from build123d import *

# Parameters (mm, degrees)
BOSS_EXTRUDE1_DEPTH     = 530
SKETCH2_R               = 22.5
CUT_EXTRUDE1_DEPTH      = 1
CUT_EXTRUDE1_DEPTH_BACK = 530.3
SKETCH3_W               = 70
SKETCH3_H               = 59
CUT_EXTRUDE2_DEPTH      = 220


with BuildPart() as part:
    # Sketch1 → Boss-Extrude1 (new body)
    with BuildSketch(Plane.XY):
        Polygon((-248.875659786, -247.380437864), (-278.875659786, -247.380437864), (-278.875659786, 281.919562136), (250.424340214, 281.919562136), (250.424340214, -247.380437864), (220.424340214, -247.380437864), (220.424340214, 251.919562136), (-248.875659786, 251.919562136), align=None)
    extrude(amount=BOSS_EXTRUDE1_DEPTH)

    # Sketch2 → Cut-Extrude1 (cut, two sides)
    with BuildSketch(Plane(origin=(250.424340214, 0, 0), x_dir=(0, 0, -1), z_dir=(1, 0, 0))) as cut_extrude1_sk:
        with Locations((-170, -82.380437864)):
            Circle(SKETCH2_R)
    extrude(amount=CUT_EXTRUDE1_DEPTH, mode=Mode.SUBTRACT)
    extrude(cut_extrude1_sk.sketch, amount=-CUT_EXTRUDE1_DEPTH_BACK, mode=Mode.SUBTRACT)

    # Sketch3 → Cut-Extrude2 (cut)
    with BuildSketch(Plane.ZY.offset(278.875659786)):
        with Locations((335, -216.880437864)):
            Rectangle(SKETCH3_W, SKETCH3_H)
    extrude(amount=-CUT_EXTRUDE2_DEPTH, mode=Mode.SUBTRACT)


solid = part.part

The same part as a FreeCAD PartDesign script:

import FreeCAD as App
import Part
import Sketcher

V = App.Vector

doc = App.newDocument("Part")
body = doc.addObject("PartDesign::Body", "Body")

# Sketch on XY plane
sketch1 = doc.addObject("Sketcher::SketchObject", "Sketch")
body.addObject(sketch1)
sketch1.AttachmentSupport = (doc.XY_Plane, [""])
sketch1.MapMode = "FlatFace"
sketch1.addGeometry([
    Part.LineSegment(V(-279, -247, 0), V(-249, -247, 0)),  # 0
    Part.LineSegment(V(-249, -247, 0), V(-249, 252, 0)),  # 1
    Part.LineSegment(V(-249, 252, 0), V(220, 252, 0)),  # 2
    Part.LineSegment(V(220, 252, 0), V(220, -247, 0)),  # 3
    Part.LineSegment(V(220, -247, 0), V(250, -247, 0)),  # 4
    Part.LineSegment(V(250, -247, 0), V(250, 282, 0)),  # 5
    Part.LineSegment(V(250, 282, 0), V(-279, 282, 0)),  # 6
    Part.LineSegment(V(-279, 282, 0), V(-279, -247, 0)),  # 7
], False)
sketch1.addConstraint([
    Sketcher.Constraint("Coincident", 0, 2, 1, 1),
    Sketcher.Constraint("Coincident", 1, 2, 2, 1),
    Sketcher.Constraint("Coincident", 2, 2, 3, 1),
    Sketcher.Constraint("Coincident", 3, 2, 4, 1),
    Sketcher.Constraint("Coincident", 4, 2, 5, 1),
    Sketcher.Constraint("Coincident", 5, 2, 6, 1),
    Sketcher.Constraint("Coincident", 6, 2, 7, 1),
    Sketcher.Constraint("Coincident", 7, 2, 0, 1),
    Sketcher.Constraint("Horizontal", 0),
    Sketcher.Constraint("Vertical", 1),
    Sketcher.Constraint("Horizontal", 2),
    Sketcher.Constraint("Vertical", 3),
    Sketcher.Constraint("Horizontal", 4),
    Sketcher.Constraint("Vertical", 5),
    Sketcher.Constraint("Horizontal", 6),
    Sketcher.Constraint("Vertical", 7),
    Sketcher.Constraint("Horizontal", 0, 2, 3, 2),
    Sketcher.Constraint("Equal", 0, 4),
    Sketcher.Constraint("Equal", 6, 5),
    Sketcher.Constraint("DistanceX", 0, 1, 0, 2, 30.0),
    Sketcher.Constraint("DistanceX", 2, 1, 2, 2, 469.3),
    Sketcher.Constraint("DistanceY", 1, 1, 1, 2, 499.3),
    Sketcher.Constraint("DistanceX", 0, 2, -1, 1, 248.87566),
    Sketcher.Constraint("DistanceY", 0, 2, -1, 1, 247.380438),
])
pad1 = doc.addObject("PartDesign::Pad", "Pad")
body.addObject(pad1)
pad1.Profile = sketch1
pad1.Length = 530

# Sketch on YZ plane
sketch2 = doc.addObject("Sketcher::SketchObject", "Sketch001")
body.addObject(sketch2)
sketch2.AttachmentSupport = (doc.YZ_Plane, [""])
sketch2.MapMode = "FlatFace"
sketch2.AttachmentOffset = App.Placement(V(0, 0, 250.42434), App.Rotation())
sketch2.addGeometry(Part.Circle(V(-82, 170, 0), V(0, 0, 1), 22), False)
sketch2.addConstraint([
    Sketcher.Constraint("Diameter", 0, 45.0),
    Sketcher.Constraint("DistanceY", -1, 1, 0, 3, 170.0),
    Sketcher.Constraint("DistanceX", 0, 3, -1, 1, 82.380438),
])
pocket1 = doc.addObject("PartDesign::Pocket", "Pocket")
body.addObject(pocket1)
pocket1.Profile = sketch2
pocket1.Type = "ThroughAll"
pocket1.Midplane = True

# Sketch on YZ plane
sketch3 = doc.addObject("Sketcher::SketchObject", "Sketch002")
body.addObject(sketch3)
sketch3.AttachmentSupport = (doc.YZ_Plane, [""])
sketch3.MapMode = "FlatFace"
sketch3.AttachmentOffset = App.Placement(V(0, 0, -278.87566), App.Rotation())
sketch3.addGeometry([
    Part.LineSegment(V(-187, 300, 0), V(-246, 300, 0)),
    Part.LineSegment(V(-246, 300, 0), V(-246, 370, 0)),
    Part.LineSegment(V(-246, 370, 0), V(-187, 370, 0)),
    Part.LineSegment(V(-187, 370, 0), V(-187, 300, 0)),
], False)
sketch3.addConstraint([
    Sketcher.Constraint("Coincident", 0, 2, 1, 1),
    Sketcher.Constraint("Coincident", 1, 2, 2, 1),
    Sketcher.Constraint("Coincident", 2, 2, 3, 1),
    Sketcher.Constraint("Coincident", 3, 2, 0, 1),
    Sketcher.Constraint("Horizontal", 0),
    Sketcher.Constraint("Vertical", 1),
    Sketcher.Constraint("Horizontal", 2),
    Sketcher.Constraint("Vertical", 3),
    Sketcher.Constraint("DistanceX", 0, 2, 0, 1, 59.0),
    Sketcher.Constraint("DistanceY", 1, 1, 1, 2, 70.0),
    Sketcher.Constraint("DistanceY", -1, 1, 0, 2, 300.0),
    Sketcher.Constraint("DistanceX", 0, 2, -1, 1, 246.380438),
])
pocket2 = doc.addObject("PartDesign::Pocket", "Pocket001")
body.addObject(pocket2)
pocket2.Profile = sketch3
pocket2.Length = 220
pocket2.Reversed = True

doc.recompute()
